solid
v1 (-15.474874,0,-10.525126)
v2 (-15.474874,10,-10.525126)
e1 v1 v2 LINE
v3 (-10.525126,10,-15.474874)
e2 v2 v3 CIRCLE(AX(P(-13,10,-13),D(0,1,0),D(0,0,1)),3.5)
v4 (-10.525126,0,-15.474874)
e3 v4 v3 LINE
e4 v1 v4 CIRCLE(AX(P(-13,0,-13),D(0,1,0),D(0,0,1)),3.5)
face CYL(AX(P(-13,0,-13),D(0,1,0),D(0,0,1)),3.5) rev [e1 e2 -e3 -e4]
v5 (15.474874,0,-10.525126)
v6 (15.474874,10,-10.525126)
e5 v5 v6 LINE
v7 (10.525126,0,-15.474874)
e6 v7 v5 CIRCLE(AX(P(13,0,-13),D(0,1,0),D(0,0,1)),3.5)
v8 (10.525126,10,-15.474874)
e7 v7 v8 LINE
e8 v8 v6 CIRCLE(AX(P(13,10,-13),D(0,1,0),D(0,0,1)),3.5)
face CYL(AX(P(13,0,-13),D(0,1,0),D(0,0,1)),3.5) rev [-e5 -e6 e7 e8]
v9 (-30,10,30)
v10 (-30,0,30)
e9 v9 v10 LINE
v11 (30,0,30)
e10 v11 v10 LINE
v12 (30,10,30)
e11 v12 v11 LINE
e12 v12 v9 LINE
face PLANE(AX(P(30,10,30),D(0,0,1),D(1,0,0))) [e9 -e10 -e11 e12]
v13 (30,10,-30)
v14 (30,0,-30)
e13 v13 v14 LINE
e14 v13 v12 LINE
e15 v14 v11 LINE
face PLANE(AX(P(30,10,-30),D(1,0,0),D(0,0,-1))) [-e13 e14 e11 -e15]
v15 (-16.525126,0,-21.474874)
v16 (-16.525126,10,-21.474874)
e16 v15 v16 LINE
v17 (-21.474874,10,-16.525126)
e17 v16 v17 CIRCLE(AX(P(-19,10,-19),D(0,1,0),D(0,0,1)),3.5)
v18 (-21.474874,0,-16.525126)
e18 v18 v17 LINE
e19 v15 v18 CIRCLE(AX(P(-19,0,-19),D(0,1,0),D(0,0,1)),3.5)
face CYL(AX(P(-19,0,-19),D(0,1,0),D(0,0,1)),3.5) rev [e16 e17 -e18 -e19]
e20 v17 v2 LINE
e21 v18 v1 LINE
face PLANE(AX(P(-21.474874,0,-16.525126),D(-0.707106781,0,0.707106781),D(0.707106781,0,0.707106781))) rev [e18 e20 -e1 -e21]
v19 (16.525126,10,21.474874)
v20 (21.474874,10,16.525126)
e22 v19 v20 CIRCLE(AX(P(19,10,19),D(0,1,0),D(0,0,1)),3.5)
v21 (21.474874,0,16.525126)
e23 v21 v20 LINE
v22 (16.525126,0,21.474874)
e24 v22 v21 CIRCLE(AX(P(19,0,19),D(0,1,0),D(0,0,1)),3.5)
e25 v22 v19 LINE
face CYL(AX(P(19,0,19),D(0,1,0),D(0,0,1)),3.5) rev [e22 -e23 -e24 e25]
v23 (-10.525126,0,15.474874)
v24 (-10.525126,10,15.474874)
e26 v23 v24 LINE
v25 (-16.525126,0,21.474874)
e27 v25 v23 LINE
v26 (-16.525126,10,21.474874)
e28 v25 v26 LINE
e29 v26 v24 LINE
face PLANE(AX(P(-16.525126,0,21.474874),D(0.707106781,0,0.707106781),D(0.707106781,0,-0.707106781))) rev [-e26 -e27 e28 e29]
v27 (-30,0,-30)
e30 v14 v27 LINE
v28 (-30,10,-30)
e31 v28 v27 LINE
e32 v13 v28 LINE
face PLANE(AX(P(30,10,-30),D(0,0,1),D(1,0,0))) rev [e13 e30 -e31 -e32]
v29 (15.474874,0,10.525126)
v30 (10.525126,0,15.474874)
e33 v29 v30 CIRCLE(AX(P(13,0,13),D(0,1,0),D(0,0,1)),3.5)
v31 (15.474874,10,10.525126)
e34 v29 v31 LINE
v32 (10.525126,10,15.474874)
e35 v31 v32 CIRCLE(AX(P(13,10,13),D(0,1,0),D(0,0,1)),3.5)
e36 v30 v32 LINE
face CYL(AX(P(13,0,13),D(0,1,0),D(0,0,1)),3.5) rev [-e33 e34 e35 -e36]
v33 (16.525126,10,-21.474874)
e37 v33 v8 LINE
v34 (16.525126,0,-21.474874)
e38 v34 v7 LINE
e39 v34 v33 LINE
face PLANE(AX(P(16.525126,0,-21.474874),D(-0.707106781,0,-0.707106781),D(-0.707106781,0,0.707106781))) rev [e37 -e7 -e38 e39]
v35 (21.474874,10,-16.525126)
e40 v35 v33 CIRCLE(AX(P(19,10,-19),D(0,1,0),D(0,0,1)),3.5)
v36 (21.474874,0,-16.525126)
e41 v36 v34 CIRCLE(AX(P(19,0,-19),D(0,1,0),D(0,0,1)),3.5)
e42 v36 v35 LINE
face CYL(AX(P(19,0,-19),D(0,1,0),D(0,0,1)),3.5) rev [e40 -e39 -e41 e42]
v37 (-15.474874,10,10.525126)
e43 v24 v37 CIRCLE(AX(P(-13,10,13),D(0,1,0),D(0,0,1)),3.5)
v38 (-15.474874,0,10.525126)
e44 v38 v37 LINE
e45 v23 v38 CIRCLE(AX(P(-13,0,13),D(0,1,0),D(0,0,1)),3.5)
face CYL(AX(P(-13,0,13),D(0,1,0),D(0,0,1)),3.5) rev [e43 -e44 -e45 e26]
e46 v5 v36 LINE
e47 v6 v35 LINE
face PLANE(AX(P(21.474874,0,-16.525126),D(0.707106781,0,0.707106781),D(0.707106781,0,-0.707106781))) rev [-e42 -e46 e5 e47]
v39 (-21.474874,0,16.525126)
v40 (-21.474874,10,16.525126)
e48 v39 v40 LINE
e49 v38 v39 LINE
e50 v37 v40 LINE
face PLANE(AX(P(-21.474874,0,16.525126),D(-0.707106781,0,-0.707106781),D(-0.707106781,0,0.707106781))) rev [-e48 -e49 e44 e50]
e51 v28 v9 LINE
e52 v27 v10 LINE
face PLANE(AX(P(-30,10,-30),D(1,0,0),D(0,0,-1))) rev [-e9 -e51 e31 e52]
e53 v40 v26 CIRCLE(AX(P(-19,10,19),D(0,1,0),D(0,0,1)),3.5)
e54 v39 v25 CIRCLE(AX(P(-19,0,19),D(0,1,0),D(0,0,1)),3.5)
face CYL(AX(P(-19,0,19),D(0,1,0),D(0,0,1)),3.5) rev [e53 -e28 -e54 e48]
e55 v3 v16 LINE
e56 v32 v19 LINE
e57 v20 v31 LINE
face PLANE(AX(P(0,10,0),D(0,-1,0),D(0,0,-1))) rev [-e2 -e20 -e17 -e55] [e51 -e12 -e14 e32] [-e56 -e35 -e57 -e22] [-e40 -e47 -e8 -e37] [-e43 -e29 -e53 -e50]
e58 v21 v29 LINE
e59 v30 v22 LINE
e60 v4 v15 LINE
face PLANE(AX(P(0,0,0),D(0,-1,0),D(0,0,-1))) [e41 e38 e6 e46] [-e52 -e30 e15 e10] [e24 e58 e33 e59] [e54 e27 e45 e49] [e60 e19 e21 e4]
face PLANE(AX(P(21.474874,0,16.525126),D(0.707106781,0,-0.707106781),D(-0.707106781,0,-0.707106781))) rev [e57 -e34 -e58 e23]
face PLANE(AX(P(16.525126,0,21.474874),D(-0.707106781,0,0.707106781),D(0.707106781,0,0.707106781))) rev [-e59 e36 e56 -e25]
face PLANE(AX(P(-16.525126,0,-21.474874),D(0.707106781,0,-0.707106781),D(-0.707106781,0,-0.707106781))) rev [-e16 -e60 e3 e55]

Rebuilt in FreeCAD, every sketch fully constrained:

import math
import FreeCAD as App
import Part
import Sketcher

V = App.Vector


def add_polygon(sketch, points):
    """Adds a closed chain of lines whose ends are joined by coincident constraints."""
    first, n = sketch.GeometryCount, len(points)
    for a, b in zip(points, points[1:] + points[:1]):
        sketch.addGeometry(Part.LineSegment(App.Vector(*a, 0), App.Vector(*b, 0)), False)
    for i in range(n):
        sketch.addConstraint(Sketcher.Constraint("Coincident", first + i, 2, first + (i + 1) % n, 1))

doc = App.newDocument("Part")
body = doc.addObject("PartDesign::Body", "Body")

sketch1 = body.newObject("Sketcher::SketchObject", "Sketch")
sketch1.AttachmentSupport = (doc.getObject("XZ_Plane"), [""])
sketch1.MapMode = "FlatFace"
add_polygon(sketch1, [(-30, -30), (-30, 30), (30, 30), (30, -30)])
sketch1.addConstraint([
    Sketcher.Constraint("Vertical", 0),
    Sketcher.Constraint("Horizontal", 1),
    Sketcher.Constraint("Vertical", 2),
    Sketcher.Constraint("Horizontal", 3),
    Sketcher.Constraint("Symmetric", 0, 2, 2, 2, -1, 1),
    Sketcher.Constraint("Equal", 3, 0),
    Sketcher.Constraint("DistanceX", 1, 1, 1, 2, 60.0),
])
pad1 = body.newObject("PartDesign::Pad", "Pad")
pad1.Profile = sketch1
pad1.Length = 10
pad1.Reversed = True

sketch2 = body.newObject("Sketcher::SketchObject", "Sketch001")
sketch2.AttachmentSupport = (doc.getObject("XZ_Plane"), [""])
sketch2.MapMode = "FlatFace"
sketch2.AttachmentOffset = App.Placement(V(0, 0, -10), App.Rotation())
sketch2.addGeometry([
    Part.LineSegment(V(-10.525126, -15.474874, 0), V(-16.525126, -21.474874, 0)),
    Part.ArcOfCircle(Part.Circle(V(-19, -19, 0), V(0, 0, 1), 3.5), math.radians(135), math.radians(315)),
    Part.LineSegment(V(-21.474874, -16.525126, 0), V(-15.474874, -10.525126, 0)),
    Part.ArcOfCircle(Part.Circle(V(-13, -13, 0), V(0, 0, 1), 3.5), math.radians(-45), math.radians(135)),
    Part.LineSegment(V(15.474874, -10.525126, 0), V(21.474874, -16.525126, 0)),
    Part.ArcOfCircle(Part.Circle(V(19, -19, 0), V(0, 0, 1), 3.5), math.radians(-135), math.radians(45)),
    Part.LineSegment(V(16.525126, -21.474874, 0), V(10.525126, -15.474874, 0)),
    Part.ArcOfCircle(Part.Circle(V(13, -13, 0), V(0, 0, 1), 3.5), math.radians(45), math.radians(225)),
    Part.LineSegment(V(10.525126, 15.474874, 0), V(16.525126, 21.474874, 0)),
    Part.ArcOfCircle(Part.Circle(V(19, 19, 0), V(0, 0, 1), 3.5), math.radians(-45), math.radians(135)),
    Part.LineSegment(V(21.474874, 16.525126, 0), V(15.474874, 10.525126, 0)),
    Part.ArcOfCircle(Part.Circle(V(13, 13, 0), V(0, 0, 1), 3.5), math.radians(135), math.radians(315)),
    Part.LineSegment(V(-15.474874, 10.525126, 0), V(-21.474874, 16.525126, 0)),
    Part.ArcOfCircle(Part.Circle(V(-19, 19, 0), V(0, 0, 1), 3.5), math.radians(45), math.radians(225)),
    Part.LineSegment(V(-16.525126, 21.474874, 0), V(-10.525126, 15.474874, 0)),
    Part.ArcOfCircle(Part.Circle(V(-13, 13, 0), V(0, 0, 1), 3.5), math.radians(-135), math.radians(45)),
], False)
sketch2.addConstraint([
    Sketcher.Constraint("Tangent", 0, 2, 1, 2),
    Sketcher.Constraint("Tangent", 1, 1, 2, 1),
    Sketcher.Constraint("Tangent", 2, 2, 3, 2),
    Sketcher.Constraint("Tangent", 3, 1, 0, 1),
    Sketcher.Constraint("Tangent", 4, 2, 5, 2),
    Sketcher.Constraint("Tangent", 5, 1, 6, 1),
    Sketcher.Constraint("Tangent", 6, 2, 7, 2),
    Sketcher.Constraint("Tangent", 7, 1, 4, 1),
    Sketcher.Constraint("Tangent", 8, 2, 9, 2),
    Sketcher.Constraint("Tangent", 9, 1, 10, 1),
    Sketcher.Constraint("Tangent", 10, 2, 11, 2),
    Sketcher.Constraint("Tangent", 11, 1, 8, 1),
    Sketcher.Constraint("Tangent", 12, 2, 13, 2),
    Sketcher.Constraint("Tangent", 13, 1, 14, 1),
    Sketcher.Constraint("Tangent", 14, 2, 15, 2),
    Sketcher.Constraint("Tangent", 15, 1, 12, 1),
    Sketcher.Constraint("Equal", 1, 3),
    Sketcher.Constraint("Equal", 3, 5),
    Sketcher.Constraint("Equal", 5, 7),
    Sketcher.Constraint("Equal", 7, 9),
    Sketcher.Constraint("Equal", 9, 11),
    Sketcher.Constraint("Equal", 11, 13),
    Sketcher.Constraint("Equal", 13, 15),
    Sketcher.Constraint("Symmetric", 1, 3, 9, 3, -1, 1),
    Sketcher.Constraint("Symmetric", 3, 3, 11, 3, -1, 1),
    Sketcher.Constraint("Symmetric", 5, 3, 13, 3, -1, 1),
    Sketcher.Constraint("Symmetric", 7, 3, 15, 3, -1, 1),
    Sketcher.Constraint("Symmetric", 1, 3, 5, 3, -2),
    Sketcher.Constraint("Symmetric", 3, 3, 7, 3, -2),
    Sketcher.Constraint("Perpendicular", 2, 4),
    Sketcher.Constraint("Radius", 1, 3.5),
    Sketcher.Constraint("DistanceX", 1, 3, -1, 1, 19.0),
    Sketcher.Constraint("DistanceY", 1, 3, -1, 1, 19.0),
    Sketcher.Constraint("DistanceX", 3, 3, -1, 1, 13.0),
])
pocket1 = body.newObject("PartDesign::Pocket", "Pocket")
pocket1.Profile = sketch2
pocket1.Type = "ThroughAll"
pocket1.Reversed = True

doc.recompute()
